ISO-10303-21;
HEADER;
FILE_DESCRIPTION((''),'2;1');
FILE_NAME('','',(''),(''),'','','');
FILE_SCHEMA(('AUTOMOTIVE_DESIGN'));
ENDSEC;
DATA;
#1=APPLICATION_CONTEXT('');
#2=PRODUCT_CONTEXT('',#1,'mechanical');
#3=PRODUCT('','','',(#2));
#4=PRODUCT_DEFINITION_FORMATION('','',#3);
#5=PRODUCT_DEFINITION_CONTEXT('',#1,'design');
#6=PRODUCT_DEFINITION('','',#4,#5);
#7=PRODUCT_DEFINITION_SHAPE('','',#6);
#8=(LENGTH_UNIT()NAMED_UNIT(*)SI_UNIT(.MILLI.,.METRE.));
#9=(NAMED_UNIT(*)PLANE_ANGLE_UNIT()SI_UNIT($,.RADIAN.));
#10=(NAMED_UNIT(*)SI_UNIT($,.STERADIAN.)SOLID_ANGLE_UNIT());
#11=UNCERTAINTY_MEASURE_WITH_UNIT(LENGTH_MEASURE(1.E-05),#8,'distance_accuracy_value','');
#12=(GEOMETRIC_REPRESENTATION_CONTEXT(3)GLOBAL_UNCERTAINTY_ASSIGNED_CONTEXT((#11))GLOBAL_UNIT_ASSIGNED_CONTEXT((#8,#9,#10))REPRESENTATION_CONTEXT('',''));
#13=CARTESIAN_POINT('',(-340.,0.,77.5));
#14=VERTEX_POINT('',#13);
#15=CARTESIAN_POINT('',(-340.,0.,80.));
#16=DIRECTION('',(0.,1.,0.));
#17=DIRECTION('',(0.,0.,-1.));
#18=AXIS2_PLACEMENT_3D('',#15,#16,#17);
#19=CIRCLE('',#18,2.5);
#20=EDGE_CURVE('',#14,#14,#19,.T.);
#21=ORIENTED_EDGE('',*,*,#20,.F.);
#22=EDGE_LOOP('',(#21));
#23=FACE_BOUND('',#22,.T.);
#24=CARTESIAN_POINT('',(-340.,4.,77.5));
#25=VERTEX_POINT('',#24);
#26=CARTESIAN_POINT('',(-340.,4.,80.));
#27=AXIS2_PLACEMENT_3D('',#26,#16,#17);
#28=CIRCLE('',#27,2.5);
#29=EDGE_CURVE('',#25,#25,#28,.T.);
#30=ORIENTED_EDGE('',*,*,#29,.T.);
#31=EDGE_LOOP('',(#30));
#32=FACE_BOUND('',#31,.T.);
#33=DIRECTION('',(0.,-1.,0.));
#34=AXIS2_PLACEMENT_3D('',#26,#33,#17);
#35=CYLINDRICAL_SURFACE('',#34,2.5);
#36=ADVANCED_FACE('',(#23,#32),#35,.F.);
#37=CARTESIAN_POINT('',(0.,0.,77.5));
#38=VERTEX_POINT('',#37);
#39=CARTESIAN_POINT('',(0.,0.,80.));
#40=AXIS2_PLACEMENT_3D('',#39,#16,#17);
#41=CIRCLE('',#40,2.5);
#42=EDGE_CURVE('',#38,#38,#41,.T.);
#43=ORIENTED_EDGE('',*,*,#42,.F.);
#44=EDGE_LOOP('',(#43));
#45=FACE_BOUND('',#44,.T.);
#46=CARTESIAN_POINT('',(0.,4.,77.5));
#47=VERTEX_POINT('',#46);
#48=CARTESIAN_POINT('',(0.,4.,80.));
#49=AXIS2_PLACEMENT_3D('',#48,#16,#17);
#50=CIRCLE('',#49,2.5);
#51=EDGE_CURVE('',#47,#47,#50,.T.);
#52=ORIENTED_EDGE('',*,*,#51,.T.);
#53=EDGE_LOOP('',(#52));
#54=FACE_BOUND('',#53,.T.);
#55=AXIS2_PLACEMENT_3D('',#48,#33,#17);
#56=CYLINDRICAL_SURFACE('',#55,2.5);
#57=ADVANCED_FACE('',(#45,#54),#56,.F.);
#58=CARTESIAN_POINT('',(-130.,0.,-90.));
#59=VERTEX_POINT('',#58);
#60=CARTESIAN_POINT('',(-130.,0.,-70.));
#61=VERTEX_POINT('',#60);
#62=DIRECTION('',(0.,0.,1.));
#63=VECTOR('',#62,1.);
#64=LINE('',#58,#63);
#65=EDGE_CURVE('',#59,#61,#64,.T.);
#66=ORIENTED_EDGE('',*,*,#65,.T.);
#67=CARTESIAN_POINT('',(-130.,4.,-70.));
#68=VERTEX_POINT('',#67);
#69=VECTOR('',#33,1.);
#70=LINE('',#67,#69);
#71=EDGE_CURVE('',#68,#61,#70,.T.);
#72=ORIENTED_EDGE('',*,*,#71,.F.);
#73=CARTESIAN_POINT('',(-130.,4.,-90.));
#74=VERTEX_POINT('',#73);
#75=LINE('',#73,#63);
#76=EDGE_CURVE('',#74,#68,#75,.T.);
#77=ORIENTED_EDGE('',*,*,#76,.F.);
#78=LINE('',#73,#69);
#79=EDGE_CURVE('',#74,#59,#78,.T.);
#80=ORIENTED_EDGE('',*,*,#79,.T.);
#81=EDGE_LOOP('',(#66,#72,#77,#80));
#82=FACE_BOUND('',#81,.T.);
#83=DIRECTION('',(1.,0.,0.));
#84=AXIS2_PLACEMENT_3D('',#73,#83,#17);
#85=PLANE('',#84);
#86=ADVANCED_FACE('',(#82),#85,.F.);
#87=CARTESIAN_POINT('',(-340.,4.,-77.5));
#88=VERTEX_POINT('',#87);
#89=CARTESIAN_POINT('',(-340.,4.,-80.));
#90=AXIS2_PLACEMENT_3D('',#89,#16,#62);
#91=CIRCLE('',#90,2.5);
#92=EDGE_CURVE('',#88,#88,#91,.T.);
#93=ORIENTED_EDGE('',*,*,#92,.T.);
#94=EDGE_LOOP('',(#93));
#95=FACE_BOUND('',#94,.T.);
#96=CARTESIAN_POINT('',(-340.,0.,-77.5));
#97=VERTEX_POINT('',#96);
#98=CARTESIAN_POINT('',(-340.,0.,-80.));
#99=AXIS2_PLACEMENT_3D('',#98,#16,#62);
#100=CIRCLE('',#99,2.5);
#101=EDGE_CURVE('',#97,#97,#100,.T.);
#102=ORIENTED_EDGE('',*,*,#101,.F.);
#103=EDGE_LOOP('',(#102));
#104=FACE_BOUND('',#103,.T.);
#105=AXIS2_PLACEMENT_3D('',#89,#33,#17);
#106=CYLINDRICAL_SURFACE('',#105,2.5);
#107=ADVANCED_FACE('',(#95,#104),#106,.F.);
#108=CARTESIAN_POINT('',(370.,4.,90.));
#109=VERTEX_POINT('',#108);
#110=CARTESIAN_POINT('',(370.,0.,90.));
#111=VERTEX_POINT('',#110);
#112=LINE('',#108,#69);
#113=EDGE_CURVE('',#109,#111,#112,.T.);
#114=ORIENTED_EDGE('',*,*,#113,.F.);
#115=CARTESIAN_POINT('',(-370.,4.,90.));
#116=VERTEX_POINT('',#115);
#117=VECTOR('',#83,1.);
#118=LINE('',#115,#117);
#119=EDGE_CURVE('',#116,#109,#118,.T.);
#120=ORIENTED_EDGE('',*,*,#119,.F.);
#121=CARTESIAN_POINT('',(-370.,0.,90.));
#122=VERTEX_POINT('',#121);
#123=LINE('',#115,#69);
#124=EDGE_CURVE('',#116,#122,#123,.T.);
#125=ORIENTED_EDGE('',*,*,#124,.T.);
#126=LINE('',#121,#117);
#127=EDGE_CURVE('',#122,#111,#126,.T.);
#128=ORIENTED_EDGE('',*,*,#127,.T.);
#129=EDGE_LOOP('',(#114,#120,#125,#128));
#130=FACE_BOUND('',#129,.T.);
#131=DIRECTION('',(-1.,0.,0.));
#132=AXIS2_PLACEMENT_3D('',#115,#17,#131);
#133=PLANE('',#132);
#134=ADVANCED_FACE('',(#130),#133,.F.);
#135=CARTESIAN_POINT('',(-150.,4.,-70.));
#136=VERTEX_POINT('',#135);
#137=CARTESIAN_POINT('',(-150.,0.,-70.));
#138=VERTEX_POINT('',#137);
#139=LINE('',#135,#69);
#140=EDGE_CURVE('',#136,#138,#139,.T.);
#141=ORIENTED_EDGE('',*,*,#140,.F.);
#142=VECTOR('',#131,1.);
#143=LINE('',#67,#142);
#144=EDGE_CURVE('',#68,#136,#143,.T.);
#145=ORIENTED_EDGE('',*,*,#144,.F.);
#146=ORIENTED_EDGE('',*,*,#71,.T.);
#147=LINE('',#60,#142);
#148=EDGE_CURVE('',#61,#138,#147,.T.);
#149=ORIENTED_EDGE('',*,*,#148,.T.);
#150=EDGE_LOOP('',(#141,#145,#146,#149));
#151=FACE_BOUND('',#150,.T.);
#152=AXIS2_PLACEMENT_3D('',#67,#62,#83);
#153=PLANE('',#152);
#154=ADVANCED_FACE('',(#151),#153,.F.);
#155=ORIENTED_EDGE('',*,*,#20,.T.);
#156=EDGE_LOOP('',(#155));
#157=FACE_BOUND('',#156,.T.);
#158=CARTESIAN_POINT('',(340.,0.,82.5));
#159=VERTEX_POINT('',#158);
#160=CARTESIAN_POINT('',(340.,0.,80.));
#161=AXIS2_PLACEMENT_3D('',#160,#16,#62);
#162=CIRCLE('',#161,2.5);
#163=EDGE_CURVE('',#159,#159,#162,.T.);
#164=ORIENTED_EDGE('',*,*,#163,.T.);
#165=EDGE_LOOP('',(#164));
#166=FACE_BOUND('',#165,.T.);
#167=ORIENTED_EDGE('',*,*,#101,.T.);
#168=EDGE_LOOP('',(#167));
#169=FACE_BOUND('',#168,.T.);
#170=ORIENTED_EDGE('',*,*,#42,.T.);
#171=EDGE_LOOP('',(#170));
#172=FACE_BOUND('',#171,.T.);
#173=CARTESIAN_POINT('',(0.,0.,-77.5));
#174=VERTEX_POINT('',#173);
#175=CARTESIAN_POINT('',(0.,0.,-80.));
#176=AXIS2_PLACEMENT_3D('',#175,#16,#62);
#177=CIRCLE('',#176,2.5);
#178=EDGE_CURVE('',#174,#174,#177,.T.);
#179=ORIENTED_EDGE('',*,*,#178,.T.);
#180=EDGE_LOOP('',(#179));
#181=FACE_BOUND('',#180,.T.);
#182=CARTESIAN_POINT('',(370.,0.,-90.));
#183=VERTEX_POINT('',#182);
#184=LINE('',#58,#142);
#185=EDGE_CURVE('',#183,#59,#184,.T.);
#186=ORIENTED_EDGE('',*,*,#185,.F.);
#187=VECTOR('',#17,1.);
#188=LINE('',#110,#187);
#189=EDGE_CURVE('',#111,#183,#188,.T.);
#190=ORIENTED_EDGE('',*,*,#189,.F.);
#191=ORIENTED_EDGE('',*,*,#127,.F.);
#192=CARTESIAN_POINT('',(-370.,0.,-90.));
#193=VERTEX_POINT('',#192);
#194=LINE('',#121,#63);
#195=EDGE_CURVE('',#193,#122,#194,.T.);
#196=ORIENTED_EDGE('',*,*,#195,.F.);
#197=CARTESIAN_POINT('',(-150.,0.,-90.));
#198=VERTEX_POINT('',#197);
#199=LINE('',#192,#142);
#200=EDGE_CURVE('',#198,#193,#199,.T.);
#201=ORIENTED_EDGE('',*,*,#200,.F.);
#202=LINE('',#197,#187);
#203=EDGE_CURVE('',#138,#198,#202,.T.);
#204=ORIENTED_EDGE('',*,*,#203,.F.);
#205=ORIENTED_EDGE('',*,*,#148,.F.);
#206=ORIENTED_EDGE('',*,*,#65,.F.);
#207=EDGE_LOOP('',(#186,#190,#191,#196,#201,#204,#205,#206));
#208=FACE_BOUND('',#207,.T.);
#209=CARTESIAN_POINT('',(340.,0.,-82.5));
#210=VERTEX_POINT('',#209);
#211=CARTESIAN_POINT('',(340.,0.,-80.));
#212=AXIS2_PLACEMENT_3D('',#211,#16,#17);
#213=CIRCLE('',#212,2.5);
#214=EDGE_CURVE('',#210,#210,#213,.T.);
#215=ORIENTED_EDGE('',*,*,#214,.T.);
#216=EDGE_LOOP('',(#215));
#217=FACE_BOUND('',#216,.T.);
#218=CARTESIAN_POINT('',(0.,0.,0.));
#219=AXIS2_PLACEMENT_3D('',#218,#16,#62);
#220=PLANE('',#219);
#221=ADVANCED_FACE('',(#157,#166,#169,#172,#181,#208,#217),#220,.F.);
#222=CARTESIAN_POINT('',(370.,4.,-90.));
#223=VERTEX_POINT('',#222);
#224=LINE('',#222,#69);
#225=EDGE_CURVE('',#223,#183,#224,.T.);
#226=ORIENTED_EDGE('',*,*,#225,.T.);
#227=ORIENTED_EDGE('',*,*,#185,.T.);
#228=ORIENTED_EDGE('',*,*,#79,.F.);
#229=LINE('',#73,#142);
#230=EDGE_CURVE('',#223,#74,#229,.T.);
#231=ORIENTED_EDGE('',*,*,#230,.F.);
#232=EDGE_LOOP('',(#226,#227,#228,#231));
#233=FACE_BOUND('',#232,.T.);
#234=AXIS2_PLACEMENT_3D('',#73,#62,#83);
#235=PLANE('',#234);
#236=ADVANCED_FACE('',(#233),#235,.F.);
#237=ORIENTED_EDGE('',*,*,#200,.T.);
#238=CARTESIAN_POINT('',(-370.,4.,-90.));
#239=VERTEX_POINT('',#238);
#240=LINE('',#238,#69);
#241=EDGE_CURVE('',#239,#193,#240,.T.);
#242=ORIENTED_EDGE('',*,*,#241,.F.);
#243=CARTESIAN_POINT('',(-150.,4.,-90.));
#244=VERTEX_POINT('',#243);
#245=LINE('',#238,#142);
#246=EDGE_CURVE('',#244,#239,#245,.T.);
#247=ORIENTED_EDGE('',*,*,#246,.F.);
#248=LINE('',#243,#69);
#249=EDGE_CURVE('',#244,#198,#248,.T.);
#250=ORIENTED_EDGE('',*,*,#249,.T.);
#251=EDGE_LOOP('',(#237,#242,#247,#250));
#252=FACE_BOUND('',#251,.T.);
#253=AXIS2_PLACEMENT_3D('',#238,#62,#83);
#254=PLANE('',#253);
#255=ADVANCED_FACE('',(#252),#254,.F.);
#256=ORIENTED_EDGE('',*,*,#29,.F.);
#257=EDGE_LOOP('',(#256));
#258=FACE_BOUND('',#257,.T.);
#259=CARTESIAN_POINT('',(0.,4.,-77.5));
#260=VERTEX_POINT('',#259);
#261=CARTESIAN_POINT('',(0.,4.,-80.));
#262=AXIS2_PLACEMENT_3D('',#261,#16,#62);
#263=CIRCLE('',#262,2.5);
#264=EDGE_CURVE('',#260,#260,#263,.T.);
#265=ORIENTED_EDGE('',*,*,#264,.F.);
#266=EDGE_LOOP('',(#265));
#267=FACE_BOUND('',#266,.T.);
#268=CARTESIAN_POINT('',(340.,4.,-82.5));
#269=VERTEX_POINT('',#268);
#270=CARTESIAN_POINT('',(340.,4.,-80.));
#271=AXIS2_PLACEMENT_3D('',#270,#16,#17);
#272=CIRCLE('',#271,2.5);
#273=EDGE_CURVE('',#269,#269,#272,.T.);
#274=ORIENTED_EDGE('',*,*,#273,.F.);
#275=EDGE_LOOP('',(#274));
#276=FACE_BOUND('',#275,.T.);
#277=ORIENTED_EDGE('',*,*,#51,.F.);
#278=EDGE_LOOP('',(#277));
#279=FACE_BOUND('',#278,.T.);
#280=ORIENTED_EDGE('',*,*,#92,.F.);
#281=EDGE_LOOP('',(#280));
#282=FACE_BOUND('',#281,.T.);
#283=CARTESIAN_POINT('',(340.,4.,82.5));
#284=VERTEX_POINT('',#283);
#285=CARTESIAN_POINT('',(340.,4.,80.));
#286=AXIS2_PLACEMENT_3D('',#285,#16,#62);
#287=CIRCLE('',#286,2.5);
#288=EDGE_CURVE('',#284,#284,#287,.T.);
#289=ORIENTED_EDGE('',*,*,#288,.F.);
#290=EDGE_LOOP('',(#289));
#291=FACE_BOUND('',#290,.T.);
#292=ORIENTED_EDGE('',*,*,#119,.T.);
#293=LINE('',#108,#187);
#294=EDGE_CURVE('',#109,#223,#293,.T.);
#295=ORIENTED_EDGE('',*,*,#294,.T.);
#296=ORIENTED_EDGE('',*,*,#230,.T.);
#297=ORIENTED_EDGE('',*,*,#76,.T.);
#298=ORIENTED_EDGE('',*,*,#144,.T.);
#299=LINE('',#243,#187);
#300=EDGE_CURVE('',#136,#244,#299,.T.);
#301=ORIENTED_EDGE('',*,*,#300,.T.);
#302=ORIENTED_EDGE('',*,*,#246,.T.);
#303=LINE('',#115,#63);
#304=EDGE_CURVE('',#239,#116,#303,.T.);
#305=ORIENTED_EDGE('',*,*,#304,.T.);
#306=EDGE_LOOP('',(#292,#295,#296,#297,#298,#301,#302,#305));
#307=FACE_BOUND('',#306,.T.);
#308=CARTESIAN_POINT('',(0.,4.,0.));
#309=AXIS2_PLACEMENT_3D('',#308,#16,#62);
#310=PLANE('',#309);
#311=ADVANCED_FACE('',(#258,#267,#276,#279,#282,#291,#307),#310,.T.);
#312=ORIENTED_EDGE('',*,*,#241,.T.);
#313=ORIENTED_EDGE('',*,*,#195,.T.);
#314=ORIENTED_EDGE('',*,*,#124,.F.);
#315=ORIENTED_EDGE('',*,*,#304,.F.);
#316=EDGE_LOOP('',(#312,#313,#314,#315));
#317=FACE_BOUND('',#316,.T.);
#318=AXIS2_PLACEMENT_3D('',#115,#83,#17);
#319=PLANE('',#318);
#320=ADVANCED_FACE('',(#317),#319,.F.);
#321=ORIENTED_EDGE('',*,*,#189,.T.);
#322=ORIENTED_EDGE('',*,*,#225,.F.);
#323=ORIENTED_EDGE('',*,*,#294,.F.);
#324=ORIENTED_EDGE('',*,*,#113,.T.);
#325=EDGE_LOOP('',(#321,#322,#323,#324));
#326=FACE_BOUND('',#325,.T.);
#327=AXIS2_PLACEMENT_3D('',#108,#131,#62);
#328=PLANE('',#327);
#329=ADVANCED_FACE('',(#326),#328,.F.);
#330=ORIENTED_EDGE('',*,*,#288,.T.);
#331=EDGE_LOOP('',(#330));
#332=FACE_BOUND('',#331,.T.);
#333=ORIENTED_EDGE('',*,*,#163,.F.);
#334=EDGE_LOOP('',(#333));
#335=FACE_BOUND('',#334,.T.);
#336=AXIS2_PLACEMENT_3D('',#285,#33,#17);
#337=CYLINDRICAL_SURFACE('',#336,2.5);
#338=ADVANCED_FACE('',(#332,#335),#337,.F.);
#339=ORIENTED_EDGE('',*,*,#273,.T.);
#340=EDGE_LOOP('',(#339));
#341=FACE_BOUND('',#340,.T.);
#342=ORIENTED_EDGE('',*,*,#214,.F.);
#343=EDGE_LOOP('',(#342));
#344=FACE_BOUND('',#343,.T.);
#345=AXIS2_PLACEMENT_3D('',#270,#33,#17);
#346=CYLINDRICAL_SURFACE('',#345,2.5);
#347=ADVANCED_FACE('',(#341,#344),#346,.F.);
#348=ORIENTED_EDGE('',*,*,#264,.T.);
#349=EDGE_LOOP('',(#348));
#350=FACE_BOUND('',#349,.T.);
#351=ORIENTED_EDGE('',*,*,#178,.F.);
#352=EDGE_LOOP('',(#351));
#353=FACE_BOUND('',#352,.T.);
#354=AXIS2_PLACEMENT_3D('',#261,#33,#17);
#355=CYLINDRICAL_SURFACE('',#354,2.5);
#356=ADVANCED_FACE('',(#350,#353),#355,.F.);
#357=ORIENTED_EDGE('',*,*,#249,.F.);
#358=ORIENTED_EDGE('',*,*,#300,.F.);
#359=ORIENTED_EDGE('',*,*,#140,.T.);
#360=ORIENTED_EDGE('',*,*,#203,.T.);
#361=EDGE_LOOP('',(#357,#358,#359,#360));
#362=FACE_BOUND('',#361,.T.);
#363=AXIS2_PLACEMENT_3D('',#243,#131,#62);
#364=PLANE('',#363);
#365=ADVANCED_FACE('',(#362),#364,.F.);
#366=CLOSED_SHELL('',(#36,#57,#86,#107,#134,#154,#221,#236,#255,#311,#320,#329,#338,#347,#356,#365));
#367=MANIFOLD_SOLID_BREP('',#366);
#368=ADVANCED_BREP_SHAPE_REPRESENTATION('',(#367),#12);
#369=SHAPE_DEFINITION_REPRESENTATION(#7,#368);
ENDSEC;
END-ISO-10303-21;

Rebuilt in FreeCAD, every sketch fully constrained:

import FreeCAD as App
import Part
import Sketcher
Q = App.Units.Quantity

doc = App.newDocument("Part")
body = doc.addObject("PartDesign::Body", "Body")

# Sketch on XZ plane
sketch1 = body.newObject("Sketcher::SketchObject", "Sketch")
sketch1.AttachmentSupport = (doc.getObject("XZ_Plane"), [""])
sketch1.MapMode = "FlatFace"
sketch1.addGeometry([
    Part.LineSegment(App.Vector(-370, 90, 0), App.Vector(370, 90, 0)),  # 0
    Part.LineSegment(App.Vector(370, 90, 0), App.Vector(370, -90, 0)),  # 1
    Part.LineSegment(App.Vector(370, -90, 0), App.Vector(-130, -90, 0)),  # 2
    Part.LineSegment(App.Vector(-130, -90, 0), App.Vector(-130, -70, 0)),  # 3
    Part.LineSegment(App.Vector(-130, -70, 0), App.Vector(-150, -70, 0)),  # 4
    Part.LineSegment(App.Vector(-150, -70, 0), App.Vector(-150, -90, 0)),  # 5
    Part.LineSegment(App.Vector(-150, -90, 0), App.Vector(-370, -90, 0)),  # 6
    Part.LineSegment(App.Vector(-370, -90, 0), App.Vector(-370, 90, 0)),  # 7
    Part.Circle(App.Vector(-340, 80, 0), App.Vector(0, 0, 1), 2.5),  # 8
    Part.Circle(App.Vector(0, 80, 0), App.Vector(0, 0, 1), 2.5),  # 9
    Part.Circle(App.Vector(340, 80, 0), App.Vector(0, 0, 1), 2.5),  # 10
    Part.Circle(App.Vector(-340, -80, 0), App.Vector(0, 0, 1), 2.5),  # 11
    Part.Circle(App.Vector(0, -80, 0), App.Vector(0, 0, 1), 2.5),  # 12
    Part.Circle(App.Vector(340, -80, 0), App.Vector(0, 0, 1), 2.5),  # 13
], False)
sketch1.addConstraint([
    Sketcher.Constraint("Coincident", 0, 2, 1, 1),
    Sketcher.Constraint("Coincident", 1, 2, 2, 1),
    Sketcher.Constraint("Coincident", 2, 2, 3, 1),
    Sketcher.Constraint("Coincident", 3, 2, 4, 1),
    Sketcher.Constraint("Coincident", 4, 2, 5, 1),
    Sketcher.Constraint("Coincident", 5, 2, 6, 1),
    Sketcher.Constraint("Coincident", 6, 2, 7, 1),
    Sketcher.Constraint("Coincident", 7, 2, 0, 1),
    Sketcher.Constraint("Horizontal", 0),
    Sketcher.Constraint("Vertical", 1),
    Sketcher.Constraint("Horizontal", 2),
    Sketcher.Constraint("Vertical", 3),
    Sketcher.Constraint("Horizontal", 4),
    Sketcher.Constraint("Vertical", 5),
    Sketcher.Constraint("Horizontal", 6),
    Sketcher.Constraint("Vertical", 7),
    Sketcher.Constraint("Equal", 8, 9),
    Sketcher.Constraint("Equal", 9, 10),
    Sketcher.Constraint("Equal", 10, 11),
    Sketcher.Constraint("Equal", 11, 12),
    Sketcher.Constraint("Equal", 12, 13),
    Sketcher.Constraint("Symmetric", 10, 3, 11, 3, -1, 1),
    Sketcher.Constraint("Symmetric", 9, 3, 12, 3, -1, 1),
    Sketcher.Constraint("Symmetric", 8, 3, 13, 3, -1, 1),
    Sketcher.Constraint("Symmetric", 0, 2, 6, 2, -1, 1),
    Sketcher.Constraint("Symmetric", 8, 3, 10, 3, -2),
    Sketcher.Constraint("PointOnObject", 9, 3, -2),
    Sketcher.Constraint("Horizontal", 8, 3, 9, 3),
    Sketcher.Constraint("Horizontal", 2, 2, 5, 2),
    Sketcher.Constraint("Equal", 4, 3),
    Sketcher.Constraint("Diameter", 8, Q("5 mm")),
    Sketcher.Constraint("DistanceX", 0, 1, 0, 2, Q("740 mm")),
    Sketcher.Constraint("DistanceX", 2, 2, 2, 1, Q("500 mm")),
    Sketcher.Constraint("DistanceX", 4, 2, 4, 1, Q("20 mm")),
    Sketcher.Constraint("DistanceY", 1, 2, 1, 1, Q("180 mm")),
    Sketcher.Constraint("DistanceX", 8, 3, -1, 1, Q("340 mm")),
    Sketcher.Constraint("DistanceY", -1, 1, 8, 3, Q("80 mm")),
])
pad1 = body.newObject("PartDesign::Pad", "Pad")
pad1.Profile = sketch1
pad1.Length = 4
pad1.Reversed = True

doc.recompute()
